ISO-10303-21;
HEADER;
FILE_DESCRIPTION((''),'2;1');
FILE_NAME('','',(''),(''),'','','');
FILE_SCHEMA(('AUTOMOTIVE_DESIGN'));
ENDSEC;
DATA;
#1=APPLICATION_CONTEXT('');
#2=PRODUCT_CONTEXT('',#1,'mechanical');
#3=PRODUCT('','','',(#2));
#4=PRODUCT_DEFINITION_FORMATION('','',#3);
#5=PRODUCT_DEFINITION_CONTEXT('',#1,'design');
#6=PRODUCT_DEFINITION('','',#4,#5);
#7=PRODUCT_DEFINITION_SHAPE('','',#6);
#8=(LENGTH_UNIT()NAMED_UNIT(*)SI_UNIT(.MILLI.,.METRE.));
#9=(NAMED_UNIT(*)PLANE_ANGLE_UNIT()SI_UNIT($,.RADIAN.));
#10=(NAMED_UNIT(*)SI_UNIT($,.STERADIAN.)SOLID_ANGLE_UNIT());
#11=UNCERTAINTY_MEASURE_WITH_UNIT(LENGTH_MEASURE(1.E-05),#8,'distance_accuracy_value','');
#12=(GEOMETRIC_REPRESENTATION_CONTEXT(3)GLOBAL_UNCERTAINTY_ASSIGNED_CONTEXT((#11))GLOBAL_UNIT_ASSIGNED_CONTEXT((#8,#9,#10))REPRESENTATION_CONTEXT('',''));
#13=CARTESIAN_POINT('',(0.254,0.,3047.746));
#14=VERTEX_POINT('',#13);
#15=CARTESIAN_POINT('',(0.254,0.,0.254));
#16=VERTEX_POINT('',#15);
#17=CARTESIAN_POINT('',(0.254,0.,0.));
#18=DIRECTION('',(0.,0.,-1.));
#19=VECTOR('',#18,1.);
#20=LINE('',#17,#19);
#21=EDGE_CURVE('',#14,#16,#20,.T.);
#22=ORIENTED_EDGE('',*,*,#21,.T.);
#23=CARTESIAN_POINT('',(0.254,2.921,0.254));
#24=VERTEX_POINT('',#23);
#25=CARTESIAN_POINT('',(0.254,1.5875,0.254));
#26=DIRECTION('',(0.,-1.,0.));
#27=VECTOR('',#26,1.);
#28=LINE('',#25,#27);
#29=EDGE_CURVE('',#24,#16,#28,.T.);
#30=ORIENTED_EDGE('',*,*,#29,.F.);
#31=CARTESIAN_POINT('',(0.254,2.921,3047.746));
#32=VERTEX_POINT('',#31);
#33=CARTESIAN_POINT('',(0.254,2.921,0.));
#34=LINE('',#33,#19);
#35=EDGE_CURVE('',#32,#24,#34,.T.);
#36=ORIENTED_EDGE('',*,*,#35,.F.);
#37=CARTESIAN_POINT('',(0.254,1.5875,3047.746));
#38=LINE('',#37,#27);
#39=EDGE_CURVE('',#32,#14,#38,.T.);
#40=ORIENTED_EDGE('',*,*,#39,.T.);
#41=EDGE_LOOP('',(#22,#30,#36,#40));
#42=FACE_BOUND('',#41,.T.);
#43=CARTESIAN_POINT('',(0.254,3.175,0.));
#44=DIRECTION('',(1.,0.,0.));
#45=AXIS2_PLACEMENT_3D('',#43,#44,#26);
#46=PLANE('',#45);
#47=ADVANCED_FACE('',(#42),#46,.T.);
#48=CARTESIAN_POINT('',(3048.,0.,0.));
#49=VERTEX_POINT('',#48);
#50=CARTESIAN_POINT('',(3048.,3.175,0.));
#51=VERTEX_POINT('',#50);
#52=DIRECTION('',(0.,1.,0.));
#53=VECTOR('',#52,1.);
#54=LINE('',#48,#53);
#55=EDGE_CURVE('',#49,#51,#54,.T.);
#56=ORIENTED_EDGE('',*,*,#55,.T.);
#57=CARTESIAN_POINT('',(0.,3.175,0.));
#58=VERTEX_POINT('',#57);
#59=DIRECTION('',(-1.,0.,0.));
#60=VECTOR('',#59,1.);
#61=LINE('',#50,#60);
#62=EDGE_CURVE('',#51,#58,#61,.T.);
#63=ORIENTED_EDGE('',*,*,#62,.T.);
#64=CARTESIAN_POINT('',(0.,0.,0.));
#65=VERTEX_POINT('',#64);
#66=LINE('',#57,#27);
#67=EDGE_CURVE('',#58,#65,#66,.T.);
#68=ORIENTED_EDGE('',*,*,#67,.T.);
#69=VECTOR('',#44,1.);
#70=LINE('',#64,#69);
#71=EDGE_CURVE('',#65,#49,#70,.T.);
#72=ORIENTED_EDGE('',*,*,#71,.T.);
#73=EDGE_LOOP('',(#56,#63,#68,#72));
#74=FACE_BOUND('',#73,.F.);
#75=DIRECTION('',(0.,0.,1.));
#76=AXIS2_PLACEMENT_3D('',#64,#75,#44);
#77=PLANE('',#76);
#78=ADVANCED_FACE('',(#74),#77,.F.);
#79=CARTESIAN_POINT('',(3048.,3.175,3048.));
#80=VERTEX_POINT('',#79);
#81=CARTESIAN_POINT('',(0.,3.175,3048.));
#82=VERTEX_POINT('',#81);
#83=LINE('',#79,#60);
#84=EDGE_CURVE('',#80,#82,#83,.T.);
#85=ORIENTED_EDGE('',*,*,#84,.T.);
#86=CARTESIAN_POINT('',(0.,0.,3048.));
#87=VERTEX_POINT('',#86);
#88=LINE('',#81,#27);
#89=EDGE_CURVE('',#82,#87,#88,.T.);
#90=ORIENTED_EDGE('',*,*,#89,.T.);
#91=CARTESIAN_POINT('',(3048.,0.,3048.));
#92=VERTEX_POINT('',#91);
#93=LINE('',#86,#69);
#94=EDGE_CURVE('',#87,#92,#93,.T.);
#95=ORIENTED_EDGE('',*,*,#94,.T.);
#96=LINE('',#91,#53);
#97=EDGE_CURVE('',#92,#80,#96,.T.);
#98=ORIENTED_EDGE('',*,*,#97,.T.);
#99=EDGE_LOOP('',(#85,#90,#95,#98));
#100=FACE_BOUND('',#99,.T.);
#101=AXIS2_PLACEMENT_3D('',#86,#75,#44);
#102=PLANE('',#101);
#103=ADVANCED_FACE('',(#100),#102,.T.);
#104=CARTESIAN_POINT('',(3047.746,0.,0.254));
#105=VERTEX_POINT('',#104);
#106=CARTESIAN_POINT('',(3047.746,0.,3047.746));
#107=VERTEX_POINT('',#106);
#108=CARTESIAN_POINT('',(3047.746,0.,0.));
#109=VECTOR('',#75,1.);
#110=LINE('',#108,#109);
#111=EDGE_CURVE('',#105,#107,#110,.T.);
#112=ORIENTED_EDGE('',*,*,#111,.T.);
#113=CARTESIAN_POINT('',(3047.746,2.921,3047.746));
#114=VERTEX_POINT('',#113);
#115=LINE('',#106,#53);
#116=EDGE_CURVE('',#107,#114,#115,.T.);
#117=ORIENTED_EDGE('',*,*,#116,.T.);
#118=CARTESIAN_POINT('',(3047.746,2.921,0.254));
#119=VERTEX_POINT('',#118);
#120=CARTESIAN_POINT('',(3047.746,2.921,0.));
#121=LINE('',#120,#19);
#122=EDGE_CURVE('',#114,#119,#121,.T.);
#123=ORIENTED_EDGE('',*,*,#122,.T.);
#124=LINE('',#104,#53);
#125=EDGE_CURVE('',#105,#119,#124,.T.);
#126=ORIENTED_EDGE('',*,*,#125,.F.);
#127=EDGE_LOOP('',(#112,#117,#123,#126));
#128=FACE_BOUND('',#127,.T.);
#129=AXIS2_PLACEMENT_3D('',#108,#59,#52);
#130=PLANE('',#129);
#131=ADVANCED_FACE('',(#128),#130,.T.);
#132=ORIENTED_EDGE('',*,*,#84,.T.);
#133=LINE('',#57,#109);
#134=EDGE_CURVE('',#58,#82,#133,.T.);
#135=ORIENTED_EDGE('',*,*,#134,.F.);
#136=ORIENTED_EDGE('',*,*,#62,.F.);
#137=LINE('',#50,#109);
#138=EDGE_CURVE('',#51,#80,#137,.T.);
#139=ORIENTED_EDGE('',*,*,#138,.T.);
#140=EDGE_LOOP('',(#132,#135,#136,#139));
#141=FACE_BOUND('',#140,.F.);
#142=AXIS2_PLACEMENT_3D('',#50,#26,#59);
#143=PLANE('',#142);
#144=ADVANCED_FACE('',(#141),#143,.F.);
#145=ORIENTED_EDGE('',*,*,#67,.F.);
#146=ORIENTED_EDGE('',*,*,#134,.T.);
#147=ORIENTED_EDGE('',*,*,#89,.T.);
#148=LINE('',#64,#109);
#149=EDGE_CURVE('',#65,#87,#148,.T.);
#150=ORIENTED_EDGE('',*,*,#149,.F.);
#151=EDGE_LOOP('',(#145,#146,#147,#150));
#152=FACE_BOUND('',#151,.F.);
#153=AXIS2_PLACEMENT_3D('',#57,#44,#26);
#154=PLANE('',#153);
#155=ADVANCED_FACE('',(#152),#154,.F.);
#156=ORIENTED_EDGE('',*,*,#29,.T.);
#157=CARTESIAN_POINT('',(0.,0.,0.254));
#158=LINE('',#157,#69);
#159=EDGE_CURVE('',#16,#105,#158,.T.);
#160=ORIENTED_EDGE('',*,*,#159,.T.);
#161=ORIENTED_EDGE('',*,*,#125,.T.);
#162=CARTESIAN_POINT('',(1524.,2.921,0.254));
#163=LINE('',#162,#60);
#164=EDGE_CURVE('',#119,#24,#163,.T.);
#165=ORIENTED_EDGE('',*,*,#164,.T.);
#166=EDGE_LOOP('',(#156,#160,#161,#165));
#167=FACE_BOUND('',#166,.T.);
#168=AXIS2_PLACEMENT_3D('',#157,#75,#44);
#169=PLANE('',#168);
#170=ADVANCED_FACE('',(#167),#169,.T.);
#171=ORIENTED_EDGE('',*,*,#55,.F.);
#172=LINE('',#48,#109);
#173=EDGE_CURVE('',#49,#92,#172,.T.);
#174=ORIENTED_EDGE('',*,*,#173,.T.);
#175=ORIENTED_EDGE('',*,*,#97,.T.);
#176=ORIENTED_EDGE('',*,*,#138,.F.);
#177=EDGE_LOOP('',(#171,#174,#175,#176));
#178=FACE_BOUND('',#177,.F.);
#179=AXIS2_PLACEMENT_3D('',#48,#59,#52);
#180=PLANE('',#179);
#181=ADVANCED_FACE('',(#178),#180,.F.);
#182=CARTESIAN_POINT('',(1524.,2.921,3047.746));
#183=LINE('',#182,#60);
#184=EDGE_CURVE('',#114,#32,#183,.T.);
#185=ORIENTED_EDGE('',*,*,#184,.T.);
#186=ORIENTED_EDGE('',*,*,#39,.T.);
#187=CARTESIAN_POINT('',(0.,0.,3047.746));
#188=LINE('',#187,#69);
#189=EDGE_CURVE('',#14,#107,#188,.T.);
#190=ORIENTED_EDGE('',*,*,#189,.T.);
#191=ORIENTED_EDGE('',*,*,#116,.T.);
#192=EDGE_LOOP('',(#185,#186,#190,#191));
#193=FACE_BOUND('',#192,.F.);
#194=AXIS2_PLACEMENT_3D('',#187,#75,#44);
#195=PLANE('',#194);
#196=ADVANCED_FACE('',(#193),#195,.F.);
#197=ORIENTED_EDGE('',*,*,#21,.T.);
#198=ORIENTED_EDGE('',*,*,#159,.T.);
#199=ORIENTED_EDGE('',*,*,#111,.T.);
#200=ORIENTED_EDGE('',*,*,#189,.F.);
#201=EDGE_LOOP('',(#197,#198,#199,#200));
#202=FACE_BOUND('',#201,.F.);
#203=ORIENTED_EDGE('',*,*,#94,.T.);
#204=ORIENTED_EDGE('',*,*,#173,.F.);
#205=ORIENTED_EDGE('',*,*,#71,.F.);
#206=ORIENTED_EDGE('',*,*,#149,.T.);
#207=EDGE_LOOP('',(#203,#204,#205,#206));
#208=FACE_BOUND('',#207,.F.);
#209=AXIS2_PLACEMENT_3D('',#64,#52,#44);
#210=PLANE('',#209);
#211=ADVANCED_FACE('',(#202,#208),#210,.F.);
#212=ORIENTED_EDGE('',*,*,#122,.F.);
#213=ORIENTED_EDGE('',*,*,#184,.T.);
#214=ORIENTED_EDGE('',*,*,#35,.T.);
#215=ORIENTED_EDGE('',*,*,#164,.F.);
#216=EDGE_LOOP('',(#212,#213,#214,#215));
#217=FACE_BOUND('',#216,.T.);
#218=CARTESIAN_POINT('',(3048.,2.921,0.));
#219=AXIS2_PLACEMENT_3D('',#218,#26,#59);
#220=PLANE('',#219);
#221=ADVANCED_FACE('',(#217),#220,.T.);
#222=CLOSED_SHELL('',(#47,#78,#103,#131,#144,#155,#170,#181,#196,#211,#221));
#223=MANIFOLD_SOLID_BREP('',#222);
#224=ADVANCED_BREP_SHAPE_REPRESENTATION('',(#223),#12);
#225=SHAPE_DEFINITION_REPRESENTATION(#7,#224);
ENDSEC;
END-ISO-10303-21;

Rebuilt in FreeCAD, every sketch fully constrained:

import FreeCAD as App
import Part
import Sketcher
from FreeCAD import Vector
Q = App.Units.Quantity


def faces_at(feature, points):
    """Names of the faces that lie closest to the given points."""
    faces = feature.Shape.Faces
    near = lambda p: min(range(len(faces)), key=lambda i: faces[i].distToShape(Part.Vertex(*p))[0])
    return sorted({f"Face{near(p) + 1}" for p in points})

doc = App.newDocument("Part")
body = doc.addObject("PartDesign::Body", "Body")

sketch1 = body.newObject("Sketcher::SketchObject", "Sketch")
sketch1.AttachmentSupport = (doc.getObject("XY_Plane"), [""])
sketch1.MapMode = "FlatFace"
sketch1.addGeometry([
    Part.LineSegment(Vector(0, 3.2, 0), Vector(0, 0, 0)),
    Part.LineSegment(Vector(0, 0, 0), Vector(3048, 0, 0)),
    Part.LineSegment(Vector(3048, 0, 0), Vector(3048, 3.2, 0)),
    Part.LineSegment(Vector(3048, 3.2, 0), Vector(0, 3.2, 0)),
], False)
sketch1.addConstraint([
    Sketcher.Constraint("Coincident", 0, 2, 1, 1),
    Sketcher.Constraint("Coincident", 1, 2, 2, 1),
    Sketcher.Constraint("Coincident", 2, 2, 3, 1),
    Sketcher.Constraint("Coincident", 3, 2, 0, 1),
    Sketcher.Constraint("Vertical", 0),
    Sketcher.Constraint("Horizontal", 1),
    Sketcher.Constraint("Vertical", 2),
    Sketcher.Constraint("Horizontal", 3),
    Sketcher.Constraint("Coincident", 0, 2, -1, 1),
    Sketcher.Constraint("DistanceX", 1, 1, 1, 2, Q("120 in")),
    Sketcher.Constraint("DistanceY", 0, 2, 0, 1, Q("0.125 in")),
])
pad1 = body.newObject("PartDesign::Pad", "Pad")
pad1.Profile = sketch1
pad1.Length = Q("120 in")
doc.recompute()

thickness = body.newObject("PartDesign::Thickness", "Thickness")
thickness.Base = (pad1, faces_at(pad1, [(1016, 0, 2032)]))
thickness.Value = Q("0.01 in")
thickness.Reversed = True
thickness.Join = "Intersection"

doc.recompute()
